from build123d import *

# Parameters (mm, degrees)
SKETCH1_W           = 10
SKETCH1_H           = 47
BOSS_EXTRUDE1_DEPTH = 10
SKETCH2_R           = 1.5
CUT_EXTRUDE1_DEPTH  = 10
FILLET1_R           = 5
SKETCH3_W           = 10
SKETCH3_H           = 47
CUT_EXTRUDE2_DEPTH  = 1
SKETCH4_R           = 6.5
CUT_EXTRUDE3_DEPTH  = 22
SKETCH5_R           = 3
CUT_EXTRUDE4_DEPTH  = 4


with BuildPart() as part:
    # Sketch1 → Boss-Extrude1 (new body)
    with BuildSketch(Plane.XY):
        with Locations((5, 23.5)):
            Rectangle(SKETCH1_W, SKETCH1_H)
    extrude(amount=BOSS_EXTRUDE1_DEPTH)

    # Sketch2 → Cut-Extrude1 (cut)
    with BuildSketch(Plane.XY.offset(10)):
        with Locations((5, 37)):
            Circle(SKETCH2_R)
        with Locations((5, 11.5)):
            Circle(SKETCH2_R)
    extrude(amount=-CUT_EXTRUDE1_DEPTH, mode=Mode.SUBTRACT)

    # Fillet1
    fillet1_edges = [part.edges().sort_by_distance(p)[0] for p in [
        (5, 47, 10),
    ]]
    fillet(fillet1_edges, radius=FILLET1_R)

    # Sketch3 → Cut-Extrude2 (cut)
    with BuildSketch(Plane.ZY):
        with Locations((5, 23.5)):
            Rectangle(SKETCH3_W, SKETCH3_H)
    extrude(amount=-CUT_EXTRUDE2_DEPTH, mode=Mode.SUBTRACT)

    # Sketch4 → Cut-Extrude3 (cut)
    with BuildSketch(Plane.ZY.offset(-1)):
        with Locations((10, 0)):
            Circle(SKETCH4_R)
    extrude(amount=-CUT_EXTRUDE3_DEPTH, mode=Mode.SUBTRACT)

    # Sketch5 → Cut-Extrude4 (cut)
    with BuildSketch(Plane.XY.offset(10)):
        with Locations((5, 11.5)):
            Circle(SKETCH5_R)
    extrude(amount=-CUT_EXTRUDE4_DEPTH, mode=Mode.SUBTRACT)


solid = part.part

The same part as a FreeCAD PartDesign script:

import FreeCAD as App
import Part
import Sketcher
from FreeCAD import Vector
Q = App.Units.Quantity


def edges_at(feature, points):
    """Names of the edges that pass closest to the given points."""
    edges = feature.Shape.Edges
    near = lambda p: min(range(len(edges)), key=lambda i: edges[i].distToShape(Part.Vertex(*p))[0])
    return sorted({f"Edge{near(p) + 1}" for p in points})

doc = App.newDocument("Part")
body = doc.addObject("PartDesign::Body", "Body")

# Sketch on XY plane
sketch1 = doc.addObject("Sketcher::SketchObject", "Sketch")
body.addObject(sketch1)
sketch1.AttachmentSupport = (doc.XY_Plane, [""])
sketch1.MapMode = "FlatFace"
sketch1.addGeometry([
    Part.LineSegment(Vector(0, 47, 0), Vector(0, 0, 0)),
    Part.LineSegment(Vector(0, 0, 0), Vector(10, 0, 0)),
    Part.LineSegment(Vector(10, 0, 0), Vector(10, 47, 0)),
    Part.LineSegment(Vector(10, 47, 0), Vector(0, 47, 0)),
], False)
sketch1.addConstraint([
    Sketcher.Constraint("Coincident", 0, 2, 1, 1),
    Sketcher.Constraint("Coincident", 1, 2, 2, 1),
    Sketcher.Constraint("Coincident", 2, 2, 3, 1),
    Sketcher.Constraint("Coincident", 3, 2, 0, 1),
    Sketcher.Constraint("Vertical", 0),
    Sketcher.Constraint("Horizontal", 1),
    Sketcher.Constraint("Vertical", 2),
    Sketcher.Constraint("Horizontal", 3),
    Sketcher.Constraint("Coincident", 0, 2, -1, 1),
    Sketcher.Constraint("DistanceX", 1, 1, 1, 2, Q("10 mm")),
    Sketcher.Constraint("DistanceY", 0, 2, 0, 1, Q("47 mm")),
])
pad1 = doc.addObject("PartDesign::Pad", "Pad")
body.addObject(pad1)
pad1.Profile = sketch1
pad1.Length = 10

# Sketch on XY plane
sketch2 = doc.addObject("Sketcher::SketchObject", "Sketch001")
body.addObject(sketch2)
sketch2.AttachmentSupport = (doc.XY_Plane, [""])
sketch2.MapMode = "FlatFace"
sketch2.AttachmentOffset = App.Placement(Vector(0, 0, 10), App.Rotation())
sketch2.addGeometry([
    Part.Circle(Vector(5, 37, 0), Vector(0, 0, 1), 1.5),
    Part.Circle(Vector(5, 11.5, 0), Vector(0, 0, 1), 1.5),
], False)
sketch2.addConstraint([
    Sketcher.Constraint("Equal", 0, 1),
    Sketcher.Constraint("Vertical", 0, 3, 1, 3),
    Sketcher.Constraint("Diameter", 0, Q("3 mm")),
    Sketcher.Constraint("DistanceX", -1, 1, 0, 3, Q("5 mm")),
    Sketcher.Constraint("DistanceY", -1, 1, 0, 3, Q("37 mm")),
    Sketcher.Constraint("DistanceY", -1, 1, 1, 3, Q("11.5 mm")),
])
pocket1 = doc.addObject("PartDesign::Pocket", "Pocket")
body.addObject(pocket1)
pocket1.Profile = sketch2
pocket1.Length = 10
doc.recompute()

fillet = doc.addObject("PartDesign::Fillet", "Fillet")
body.addObject(fillet)
fillet.Base = (pocket1, edges_at(pocket1, [(5, 47, 10)]))
fillet.Radius = 5

# Sketch on YZ plane
sketch3 = doc.addObject("Sketcher::SketchObject", "Sketch002")
body.addObject(sketch3)
sketch3.AttachmentSupport = (doc.YZ_Plane, [""])
sketch3.MapMode = "FlatFace"
sketch3.addGeometry([
    Part.LineSegment(Vector(47, 0, 0), Vector(0, 0, 0)),
    Part.LineSegment(Vector(0, 0, 0), Vector(0, 10, 0)),
    Part.LineSegment(Vector(0, 10, 0), Vector(47, 10, 0)),
    Part.LineSegment(Vector(47, 10, 0), Vector(47, 0, 0)),
], False)
sketch3.addConstraint([
    Sketcher.Constraint("Coincident", 0, 2, 1, 1),
    Sketcher.Constraint("Coincident", 1, 2, 2, 1),
    Sketcher.Constraint("Coincident", 2, 2, 3, 1),
    Sketcher.Constraint("Coincident", 3, 2, 0, 1),
    Sketcher.Constraint("Horizontal", 0),
    Sketcher.Constraint("Vertical", 1),
    Sketcher.Constraint("Horizontal", 2),
    Sketcher.Constraint("Vertical", 3),
    Sketcher.Constraint("Coincident", 0, 2, -1, 1),
    Sketcher.Constraint("DistanceX", 0, 2, 0, 1, Q("47 mm")),
    Sketcher.Constraint("DistanceY", 1, 1, 1, 2, Q("10 mm")),
])
pocket2 = doc.addObject("PartDesign::Pocket", "Pocket001")
body.addObject(pocket2)
pocket2.Profile = sketch3
pocket2.Length = 1
pocket2.Reversed = True

# Sketch on YZ plane
sketch4 = doc.addObject("Sketcher::SketchObject", "Sketch003")
body.addObject(sketch4)
sketch4.AttachmentSupport = (doc.YZ_Plane, [""])
sketch4.MapMode = "FlatFace"
sketch4.AttachmentOffset = App.Placement(Vector(0, 0, 1), App.Rotation())
sketch4.addGeometry(Part.Circle(Vector(0, 10, 0), Vector(0, 0, 1), 6), False)
sketch4.addConstraint([
    Sketcher.Constraint("PointOnObject", 0, 3, -2),
    Sketcher.Constraint("Diameter", 0, Q("13 mm")),
    Sketcher.Constraint("DistanceY", -1, 1, 0, 3, Q("10 mm")),
])
pocket3 = doc.addObject("PartDesign::Pocket", "Pocket002")
body.addObject(pocket3)
pocket3.Profile = sketch4
pocket3.Length = 22
pocket3.Reversed = True

# Sketch on XY plane
sketch5 = doc.addObject("Sketcher::SketchObject", "Sketch004")
body.addObject(sketch5)
sketch5.AttachmentSupport = (doc.XY_Plane, [""])
sketch5.MapMode = "FlatFace"
sketch5.AttachmentOffset = App.Placement(Vector(0, 0, 10), App.Rotation())
sketch5.addGeometry(Part.Circle(Vector(5, 11.5, 0), Vector(0, 0, 1), 3), False)
sketch5.addConstraint([
    Sketcher.Constraint("Diameter", 0, Q("6 mm")),
    Sketcher.Constraint("DistanceX", -1, 1, 0, 3, Q("5 mm")),
    Sketcher.Constraint("DistanceY", -1, 1, 0, 3, Q("11.5 mm")),
])
pocket4 = doc.addObject("PartDesign::Pocket", "Pocket003")
body.addObject(pocket4)
pocket4.Profile = sketch5
pocket4.Length = 4

doc.recompute()
